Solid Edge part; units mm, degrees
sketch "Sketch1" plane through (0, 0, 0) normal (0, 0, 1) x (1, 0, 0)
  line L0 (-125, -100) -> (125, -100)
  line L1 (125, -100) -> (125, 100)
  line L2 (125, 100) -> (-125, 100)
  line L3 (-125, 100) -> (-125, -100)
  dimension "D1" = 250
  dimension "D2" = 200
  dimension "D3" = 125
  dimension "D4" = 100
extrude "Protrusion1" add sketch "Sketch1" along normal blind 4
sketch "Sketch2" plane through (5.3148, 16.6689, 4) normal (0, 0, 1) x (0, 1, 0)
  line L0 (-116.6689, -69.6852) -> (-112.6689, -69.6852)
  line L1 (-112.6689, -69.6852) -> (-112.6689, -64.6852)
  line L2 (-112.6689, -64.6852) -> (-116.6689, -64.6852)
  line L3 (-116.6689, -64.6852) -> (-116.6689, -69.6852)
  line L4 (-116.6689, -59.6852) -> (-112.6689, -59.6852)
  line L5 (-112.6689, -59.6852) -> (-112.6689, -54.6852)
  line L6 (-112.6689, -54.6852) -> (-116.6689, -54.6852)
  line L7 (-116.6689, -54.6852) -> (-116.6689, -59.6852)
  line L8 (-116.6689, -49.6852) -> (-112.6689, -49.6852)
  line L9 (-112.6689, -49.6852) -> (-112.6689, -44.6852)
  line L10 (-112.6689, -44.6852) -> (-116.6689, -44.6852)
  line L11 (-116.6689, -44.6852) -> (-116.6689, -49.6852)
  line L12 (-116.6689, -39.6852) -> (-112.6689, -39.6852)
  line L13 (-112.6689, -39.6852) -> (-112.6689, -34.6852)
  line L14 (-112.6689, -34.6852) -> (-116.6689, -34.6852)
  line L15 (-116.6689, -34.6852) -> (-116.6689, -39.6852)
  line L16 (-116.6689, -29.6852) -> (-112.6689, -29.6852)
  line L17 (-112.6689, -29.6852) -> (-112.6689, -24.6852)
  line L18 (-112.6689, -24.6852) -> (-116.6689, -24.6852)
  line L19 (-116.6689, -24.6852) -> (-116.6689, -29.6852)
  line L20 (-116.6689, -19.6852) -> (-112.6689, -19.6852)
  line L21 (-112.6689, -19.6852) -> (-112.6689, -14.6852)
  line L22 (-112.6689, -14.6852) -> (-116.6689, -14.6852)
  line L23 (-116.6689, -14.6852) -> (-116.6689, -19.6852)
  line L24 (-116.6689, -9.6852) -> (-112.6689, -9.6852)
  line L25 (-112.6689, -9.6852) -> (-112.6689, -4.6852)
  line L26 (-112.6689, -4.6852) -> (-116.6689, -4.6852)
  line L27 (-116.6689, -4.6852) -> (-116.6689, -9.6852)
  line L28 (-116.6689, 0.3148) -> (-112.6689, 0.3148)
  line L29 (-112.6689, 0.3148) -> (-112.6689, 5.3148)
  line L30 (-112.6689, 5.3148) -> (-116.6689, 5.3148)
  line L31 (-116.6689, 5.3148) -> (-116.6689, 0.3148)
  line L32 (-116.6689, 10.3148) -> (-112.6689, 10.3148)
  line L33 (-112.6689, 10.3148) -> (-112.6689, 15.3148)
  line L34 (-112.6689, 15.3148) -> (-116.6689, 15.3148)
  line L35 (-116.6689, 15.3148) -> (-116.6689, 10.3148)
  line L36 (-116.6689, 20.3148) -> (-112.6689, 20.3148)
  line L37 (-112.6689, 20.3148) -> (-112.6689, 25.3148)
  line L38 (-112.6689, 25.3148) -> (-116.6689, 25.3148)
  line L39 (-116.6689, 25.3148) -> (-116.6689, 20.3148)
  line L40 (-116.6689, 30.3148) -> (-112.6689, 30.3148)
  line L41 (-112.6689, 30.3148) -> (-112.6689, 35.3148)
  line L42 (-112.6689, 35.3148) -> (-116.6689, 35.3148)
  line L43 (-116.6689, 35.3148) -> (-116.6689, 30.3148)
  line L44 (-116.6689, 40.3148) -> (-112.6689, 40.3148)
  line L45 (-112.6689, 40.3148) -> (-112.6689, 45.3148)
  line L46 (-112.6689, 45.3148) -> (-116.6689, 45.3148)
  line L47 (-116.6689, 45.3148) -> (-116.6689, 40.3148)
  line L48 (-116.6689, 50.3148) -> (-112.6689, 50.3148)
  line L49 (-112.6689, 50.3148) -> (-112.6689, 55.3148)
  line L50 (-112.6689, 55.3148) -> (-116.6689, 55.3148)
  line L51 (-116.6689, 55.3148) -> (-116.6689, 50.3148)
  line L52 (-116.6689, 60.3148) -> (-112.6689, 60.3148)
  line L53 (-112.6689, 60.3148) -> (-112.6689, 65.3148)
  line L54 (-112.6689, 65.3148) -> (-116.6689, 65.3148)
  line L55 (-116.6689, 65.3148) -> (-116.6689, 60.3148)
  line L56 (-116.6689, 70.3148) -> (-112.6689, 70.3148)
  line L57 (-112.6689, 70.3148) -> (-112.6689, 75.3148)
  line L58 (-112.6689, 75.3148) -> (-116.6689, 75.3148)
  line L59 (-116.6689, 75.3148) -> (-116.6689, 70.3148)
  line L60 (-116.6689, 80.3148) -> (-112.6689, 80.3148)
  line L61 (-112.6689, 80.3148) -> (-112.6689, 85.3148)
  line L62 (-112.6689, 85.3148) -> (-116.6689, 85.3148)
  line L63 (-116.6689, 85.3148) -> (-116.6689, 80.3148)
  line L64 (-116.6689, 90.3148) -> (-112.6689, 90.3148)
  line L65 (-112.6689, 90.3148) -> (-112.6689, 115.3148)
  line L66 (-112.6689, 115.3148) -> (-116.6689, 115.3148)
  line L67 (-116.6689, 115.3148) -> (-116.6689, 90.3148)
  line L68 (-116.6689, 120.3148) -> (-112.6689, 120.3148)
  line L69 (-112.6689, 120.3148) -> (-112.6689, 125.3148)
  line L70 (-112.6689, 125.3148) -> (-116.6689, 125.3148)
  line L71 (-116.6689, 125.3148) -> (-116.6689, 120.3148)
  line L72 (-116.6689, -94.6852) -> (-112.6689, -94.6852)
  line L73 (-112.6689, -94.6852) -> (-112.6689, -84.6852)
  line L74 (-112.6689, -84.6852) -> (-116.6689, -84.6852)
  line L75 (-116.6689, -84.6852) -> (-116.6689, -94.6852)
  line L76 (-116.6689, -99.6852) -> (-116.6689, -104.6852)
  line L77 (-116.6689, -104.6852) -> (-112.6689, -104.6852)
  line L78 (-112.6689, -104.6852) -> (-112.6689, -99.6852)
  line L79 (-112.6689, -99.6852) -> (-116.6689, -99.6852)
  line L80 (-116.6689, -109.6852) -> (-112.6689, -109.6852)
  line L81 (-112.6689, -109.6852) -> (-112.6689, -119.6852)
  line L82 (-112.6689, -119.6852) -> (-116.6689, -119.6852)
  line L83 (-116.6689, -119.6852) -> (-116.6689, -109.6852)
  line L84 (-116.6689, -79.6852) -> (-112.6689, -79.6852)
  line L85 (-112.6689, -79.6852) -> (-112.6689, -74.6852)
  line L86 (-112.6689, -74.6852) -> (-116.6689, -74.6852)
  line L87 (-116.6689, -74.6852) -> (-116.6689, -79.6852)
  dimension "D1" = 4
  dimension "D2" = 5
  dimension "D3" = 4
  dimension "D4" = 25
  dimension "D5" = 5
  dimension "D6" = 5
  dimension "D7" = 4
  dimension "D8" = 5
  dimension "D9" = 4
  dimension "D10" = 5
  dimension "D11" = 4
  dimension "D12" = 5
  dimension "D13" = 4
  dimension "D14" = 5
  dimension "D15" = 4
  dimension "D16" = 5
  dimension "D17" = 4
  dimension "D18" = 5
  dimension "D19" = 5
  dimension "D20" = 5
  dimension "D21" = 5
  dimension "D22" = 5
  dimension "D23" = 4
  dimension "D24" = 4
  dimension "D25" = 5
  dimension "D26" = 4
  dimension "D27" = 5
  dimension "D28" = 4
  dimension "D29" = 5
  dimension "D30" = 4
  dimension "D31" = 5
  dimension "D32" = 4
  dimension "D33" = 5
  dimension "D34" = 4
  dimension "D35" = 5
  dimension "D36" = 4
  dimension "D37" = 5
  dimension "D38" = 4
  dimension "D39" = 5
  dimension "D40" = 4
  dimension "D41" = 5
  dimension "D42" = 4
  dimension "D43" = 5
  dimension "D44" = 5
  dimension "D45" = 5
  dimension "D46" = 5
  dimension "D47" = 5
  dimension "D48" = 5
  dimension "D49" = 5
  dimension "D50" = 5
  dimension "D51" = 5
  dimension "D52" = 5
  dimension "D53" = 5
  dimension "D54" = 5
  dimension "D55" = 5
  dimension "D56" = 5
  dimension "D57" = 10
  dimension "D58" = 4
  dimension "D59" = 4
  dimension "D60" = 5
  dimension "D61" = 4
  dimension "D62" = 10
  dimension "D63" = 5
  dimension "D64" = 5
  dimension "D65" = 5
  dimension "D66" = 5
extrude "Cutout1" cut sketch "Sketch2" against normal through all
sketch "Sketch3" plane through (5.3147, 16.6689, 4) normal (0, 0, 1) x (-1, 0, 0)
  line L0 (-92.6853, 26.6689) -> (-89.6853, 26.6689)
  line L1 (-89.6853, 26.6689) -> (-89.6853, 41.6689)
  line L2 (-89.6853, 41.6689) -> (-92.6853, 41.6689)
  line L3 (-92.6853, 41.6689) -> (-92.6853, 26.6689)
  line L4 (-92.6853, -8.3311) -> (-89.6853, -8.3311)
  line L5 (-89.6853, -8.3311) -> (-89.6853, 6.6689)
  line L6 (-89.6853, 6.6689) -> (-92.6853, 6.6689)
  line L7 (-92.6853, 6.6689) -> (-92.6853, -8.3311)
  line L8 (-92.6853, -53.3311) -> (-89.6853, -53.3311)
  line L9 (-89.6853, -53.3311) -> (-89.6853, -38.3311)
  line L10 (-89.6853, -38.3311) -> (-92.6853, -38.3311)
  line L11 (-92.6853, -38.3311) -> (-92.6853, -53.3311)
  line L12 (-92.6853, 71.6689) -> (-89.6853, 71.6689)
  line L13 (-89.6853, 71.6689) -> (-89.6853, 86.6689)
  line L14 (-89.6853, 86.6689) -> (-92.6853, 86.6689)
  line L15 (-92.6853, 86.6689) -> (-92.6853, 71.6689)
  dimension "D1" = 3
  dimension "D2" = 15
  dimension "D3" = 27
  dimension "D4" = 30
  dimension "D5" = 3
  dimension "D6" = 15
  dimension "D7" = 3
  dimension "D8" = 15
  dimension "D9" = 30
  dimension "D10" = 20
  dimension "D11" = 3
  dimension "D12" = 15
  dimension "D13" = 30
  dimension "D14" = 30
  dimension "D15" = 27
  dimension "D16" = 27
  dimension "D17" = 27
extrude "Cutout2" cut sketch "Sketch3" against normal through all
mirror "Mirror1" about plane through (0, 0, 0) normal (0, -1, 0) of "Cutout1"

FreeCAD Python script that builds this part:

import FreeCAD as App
import Part
import Sketcher

V = App.Vector
Q = App.Units.Quantity

doc = App.newDocument("Part")
params = doc.addObject("Spreadsheet::Sheet", "Params")
for row, (alias, value) in enumerate([
    ("sketch1_height", "200 mm"),
    ("pad1_length", "4 mm"),
    ("sketch2_width", "5 mm"),
    ("sketch2_width2", "25 mm"),
    ("sketch2_width3", "10 mm"),
    ("sketch2_height", "4 mm"),
    ("sketch3_width", "3 mm"),
    ("sketch3_height", "15 mm"),
], start=1):
    params.set(f"A{row}", alias)
    params.set(f"B{row}", "=" + value)
    params.setAlias(f"B{row}", alias)

body = doc.addObject("PartDesign::Body", "Body")

sketch1 = body.newObject("Sketcher::SketchObject", "Sketch")
sketch1.AttachmentSupport = (doc.getObject("XY_Plane"), [""])
sketch1.MapMode = "FlatFace"
sketch1.addGeometry(Part.LineSegment(V(-125, 100, 0), V(-125, -100, 0)), False)
sketch1.addGeometry(Part.LineSegment(V(-125, -100, 0), V(125, -100, 0)), False)
sketch1.addGeometry(Part.LineSegment(V(125, -100, 0), V(125, 100, 0)), False)
sketch1.addGeometry(Part.LineSegment(V(125, 100, 0), V(-125, 100, 0)), False)
sketch1.addConstraint(Sketcher.Constraint("Coincident", 0, 2, 1, 1))
sketch1.addConstraint(Sketcher.Constraint("Coincident", 1, 2, 2, 1))
sketch1.addConstraint(Sketcher.Constraint("Coincident", 2, 2, 3, 1))
sketch1.addConstraint(Sketcher.Constraint("Coincident", 3, 2, 0, 1))
sketch1.addConstraint(Sketcher.Constraint("Vertical", 0))
sketch1.addConstraint(Sketcher.Constraint("Horizontal", 1))
sketch1.addConstraint(Sketcher.Constraint("Vertical", 2))
sketch1.addConstraint(Sketcher.Constraint("Horizontal", 3))
sketch1.addConstraint(Sketcher.Constraint("Symmetric", 0, 2, 2, 2, -1, 1))
sketch1.addConstraint(Sketcher.Constraint("DistanceX", 0, 2, -1, 1, Q("125 mm")))
sketch1.addConstraint(Sketcher.Constraint("DistanceY", 0, 2, 0, 1, Q("200 mm")))
sketch1.setExpression("Constraints[10]", "Params.sketch1_height")
pad1 = body.newObject("PartDesign::Pad", "Pad")
pad1.Profile = sketch1
pad1.setExpression("Length", "Params.pad1_length")

sketch2 = body.newObject("Sketcher::SketchObject", "Sketch001")
sketch2.AttachmentSupport = (doc.getObject("XY_Plane"), [""])
sketch2.MapMode = "FlatFace"
sketch2.AttachmentOffset = App.Placement(V(0, 0, 4), App.Rotation())
sketch2.addGeometry(Part.LineSegment(V(70, -100, 0), V(75, -100, 0)), False)
sketch2.addGeometry(Part.LineSegment(V(75, -100, 0), V(75, -96, 0)), False)
sketch2.addGeometry(Part.LineSegment(V(75, -96, 0), V(70, -96, 0)), False)
sketch2.addGeometry(Part.LineSegment(V(70, -96, 0), V(70, -100, 0)), False)
sketch2.addGeometry(Part.LineSegment(V(60, -100, 0), V(65, -100, 0)), False)
sketch2.addGeometry(Part.LineSegment(V(65, -100, 0), V(65, -96, 0)), False)
sketch2.addGeometry(Part.LineSegment(V(65, -96, 0), V(60, -96, 0)), False)
sketch2.addGeometry(Part.LineSegment(V(60, -96, 0), V(60, -100, 0)), False)
sketch2.addGeometry(Part.LineSegment(V(50, -100, 0), V(55, -100, 0)), False)
sketch2.addGeometry(Part.LineSegment(V(55, -100, 0), V(55, -96, 0)), False)
sketch2.addGeometry(Part.LineSegment(V(55, -96, 0), V(50, -96, 0)), False)
sketch2.addGeometry(Part.LineSegment(V(50, -96, 0), V(50, -100, 0)), False)
sketch2.addGeometry(Part.LineSegment(V(40, -100, 0), V(45, -100, 0)), False)
sketch2.addGeometry(Part.LineSegment(V(45, -100, 0), V(45, -96, 0)), False)
sketch2.addGeometry(Part.LineSegment(V(45, -96, 0), V(40, -96, 0)), False)
sketch2.addGeometry(Part.LineSegment(V(40, -96, 0), V(40, -100, 0)), False)
sketch2.addGeometry(Part.LineSegment(V(30, -100, 0), V(35, -100, 0)), False)
sketch2.addGeometry(Part.LineSegment(V(35, -100, 0), V(35, -96, 0)), False)
sketch2.addGeometry(Part.LineSegment(V(35, -96, 0), V(30, -96, 0)), False)
sketch2.addGeometry(Part.LineSegment(V(30, -96, 0), V(30, -100, 0)), False)
sketch2.addGeometry(Part.LineSegment(V(20, -100, 0), V(25, -100, 0)), False)
sketch2.addGeometry(Part.LineSegment(V(25, -100, 0), V(25, -96, 0)), False)
sketch2.addGeometry(Part.LineSegment(V(25, -96, 0), V(20, -96, 0)), False)
sketch2.addGeometry(Part.LineSegment(V(20, -96, 0), V(20, -100, 0)), False)
sketch2.addGeometry(Part.LineSegment(V(10, -100, 0), V(15, -100, 0)), False)
sketch2.addGeometry(Part.LineSegment(V(15, -100, 0), V(15, -96, 0)), False)
sketch2.addGeometry(Part.LineSegment(V(15, -96, 0), V(10, -96, 0)), False)
sketch2.addGeometry(Part.LineSegment(V(10, -96, 0), V(10, -100, 0)), False)
sketch2.addGeometry(Part.LineSegment(V(0, -100, 0), V(5, -100, 0)), False)
sketch2.addGeometry(Part.LineSegment(V(5, -100, 0), V(5, -96, 0)), False)
sketch2.addGeometry(Part.LineSegment(V(5, -96, 0), V(0, -96, 0)), False)
sketch2.addGeometry(Part.LineSegment(V(0, -96, 0), V(0, -100, 0)), False)
sketch2.addGeometry(Part.LineSegment(V(-10, -100, 0), V(-5, -100, 0)), False)
sketch2.addGeometry(Part.LineSegment(V(-5, -100, 0), V(-5, -96, 0)), False)
sketch2.addGeometry(Part.LineSegment(V(-5, -96, 0), V(-10, -96, 0)), False)
sketch2.addGeometry(Part.LineSegment(V(-10, -96, 0), V(-10, -100, 0)), False)
sketch2.addGeometry(Part.LineSegment(V(-20, -100, 0), V(-15, -100, 0)), False)
sketch2.addGeometry(Part.LineSegment(V(-15, -100, 0), V(-15, -96, 0)), False)
sketch2.addGeometry(Part.LineSegment(V(-15, -96, 0), V(-20, -96, 0)), False)
sketch2.addGeometry(Part.LineSegment(V(-20, -96, 0), V(-20, -100, 0)), False)
sketch2.addGeometry(Part.LineSegment(V(-30, -100, 0), V(-25, -100, 0)), False)
sketch2.addGeometry(Part.LineSegment(V(-25, -100, 0), V(-25, -96, 0)), False)
sketch2.addGeometry(Part.LineSegment(V(-25, -96, 0), V(-30, -96, 0)), False)
sketch2.addGeometry(Part.LineSegment(V(-30, -96, 0), V(-30, -100, 0)), False)
sketch2.addGeometry(Part.LineSegment(V(-40, -100, 0), V(-35, -100, 0)), False)
sketch2.addGeometry(Part.LineSegment(V(-35, -100, 0), V(-35, -96, 0)), False)
sketch2.addGeometry(Part.LineSegment(V(-35, -96, 0), V(-40, -96, 0)), False)
sketch2.addGeometry(Part.LineSegment(V(-40, -96, 0), V(-40, -100, 0)), False)
sketch2.addGeometry(Part.LineSegment(V(-50, -100, 0), V(-45, -100, 0)), False)
sketch2.addGeometry(Part.LineSegment(V(-45, -100, 0), V(-45, -96, 0)), False)
sketch2.addGeometry(Part.LineSegment(V(-45, -96, 0), V(-50, -96, 0)), False)
sketch2.addGeometry(Part.LineSegment(V(-50, -96, 0), V(-50, -100, 0)), False)
sketch2.addGeometry(Part.LineSegment(V(-60, -100, 0), V(-55, -100, 0)), False)
sketch2.addGeometry(Part.LineSegment(V(-55, -100, 0), V(-55, -96, 0)), False)
sketch2.addGeometry(Part.LineSegment(V(-55, -96, 0), V(-60, -96, 0)), False)
sketch2.addGeometry(Part.LineSegment(V(-60, -96, 0), V(-60, -100, 0)), False)
sketch2.addGeometry(Part.LineSegment(V(-70, -100, 0), V(-65, -100, 0)), False)
sketch2.addGeometry(Part.LineSegment(V(-65, -100, 0), V(-65, -96, 0)), False)
sketch2.addGeometry(Part.LineSegment(V(-65, -96, 0), V(-70, -96, 0)), False)
sketch2.addGeometry(Part.LineSegment(V(-70, -96, 0), V(-70, -100, 0)), False)
sketch2.addGeometry(Part.LineSegment(V(-80, -100, 0), V(-75, -100, 0)), False)
sketch2.addGeometry(Part.LineSegment(V(-75, -100, 0), V(-75, -96, 0)), False)
sketch2.addGeometry(Part.LineSegment(V(-75, -96, 0), V(-80, -96, 0)), False)
sketch2.addGeometry(Part.LineSegment(V(-80, -96, 0), V(-80, -100, 0)), False)
sketch2.addGeometry(Part.LineSegment(V(-110, -100, 0), V(-85, -100, 0)), False)
sketch2.addGeometry(Part.LineSegment(V(-85, -100, 0), V(-85, -96, 0)), False)
sketch2.addGeometry(Part.LineSegment(V(-85, -96, 0), V(-110, -96, 0)), False)
sketch2.addGeometry(Part.LineSegment(V(-110, -96, 0), V(-110, -100, 0)), False)
sketch2.addGeometry(Part.LineSegment(V(-120, -100, 0), V(-115, -100, 0)), False)
sketch2.addGeometry(Part.LineSegment(V(-115, -100, 0), V(-115, -96, 0)), False)
sketch2.addGeometry(Part.LineSegment(V(-115, -96, 0), V(-120, -96, 0)), False)
sketch2.addGeometry(Part.LineSegment(V(-120, -96, 0), V(-120, -100, 0)), False)
sketch2.addGeometry(Part.LineSegment(V(90, -100, 0), V(100, -100, 0)), False)
sketch2.addGeometry(Part.LineSegment(V(100, -100, 0), V(100, -96, 0)), False)
sketch2.addGeometry(Part.LineSegment(V(100, -96, 0), V(90, -96, 0)), False)
sketch2.addGeometry(Part.LineSegment(V(90, -96, 0), V(90, -100, 0)), False)
sketch2.addGeometry(Part.LineSegment(V(105, -96, 0), V(105, -100, 0)), False)
sketch2.addGeometry(Part.LineSegment(V(105, -100, 0), V(110, -100, 0)), False)
sketch2.addGeometry(Part.LineSegment(V(110, -100, 0), V(110, -96, 0)), False)
sketch2.addGeometry(Part.LineSegment(V(110, -96, 0), V(105, -96, 0)), False)
sketch2.addGeometry(Part.LineSegment(V(115, -96, 0), V(115, -100, 0)), False)
sketch2.addGeometry(Part.LineSegment(V(115, -100, 0), V(125, -100, 0)), False)
sketch2.addGeometry(Part.LineSegment(V(125, -100, 0), V(125, -96, 0)), False)
sketch2.addGeometry(Part.LineSegment(V(125, -96, 0), V(115, -96, 0)), False)
sketch2.addGeometry(Part.LineSegment(V(80, -100, 0), V(85, -100, 0)), False)
sketch2.addGeometry(Part.LineSegment(V(85, -100, 0), V(85, -96, 0)), False)
sketch2.addGeometry(Part.LineSegment(V(85, -96, 0), V(80, -96, 0)), False)
sketch2.addGeometry(Part.LineSegment(V(80, -96, 0), V(80, -100, 0)), False)
sketch2.addConstraint(Sketcher.Constraint("Coincident", 0, 2, 1, 1))
sketch2.addConstraint(Sketcher.Constraint("Coincident", 1, 2, 2, 1))
sketch2.addConstraint(Sketcher.Constraint("Coincident", 2, 2, 3, 1))
sketch2.addConstraint(Sketcher.Constraint("Coincident", 3, 2, 0, 1))
sketch2.addConstraint(Sketcher.Constraint("Coincident", 4, 2, 5, 1))
sketch2.addConstraint(Sketcher.Constraint("Coincident", 5, 2, 6, 1))
sketch2.addConstraint(Sketcher.Constraint("Coincident", 6, 2, 7, 1))
sketch2.addConstraint(Sketcher.Constraint("Coincident", 7, 2, 4, 1))
sketch2.addConstraint(Sketcher.Constraint("Coincident", 8, 2, 9, 1))
sketch2.addConstraint(Sketcher.Constraint("Coincident", 9, 2, 10, 1))
sketch2.addConstraint(Sketcher.Constraint("Coincident", 10, 2, 11, 1))
sketch2.addConstraint(Sketcher.Constraint("Coincident", 11, 2, 8, 1))
sketch2.addConstraint(Sketcher.Constraint("Coincident", 12, 2, 13, 1))
sketch2.addConstraint(Sketcher.Constraint("Coincident", 13, 2, 14, 1))
sketch2.addConstraint(Sketcher.Constraint("Coincident", 14, 2, 15, 1))
sketch2.addConstraint(Sketcher.Constraint("Coincident", 15, 2, 12, 1))
sketch2.addConstraint(Sketcher.Constraint("Coincident", 16, 2, 17, 1))
sketch2.addConstraint(Sketcher.Constraint("Coincident", 17, 2, 18, 1))
sketch2.addConstraint(Sketcher.Constraint("Coincident", 18, 2, 19, 1))
sketch2.addConstraint(Sketcher.Constraint("Coincident", 19, 2, 16, 1))
sketch2.addConstraint(Sketcher.Constraint("Coincident", 20, 2, 21, 1))
sketch2.addConstraint(Sketcher.Constraint("Coincident", 21, 2, 22, 1))
sketch2.addConstraint(Sketcher.Constraint("Coincident", 22, 2, 23, 1))
sketch2.addConstraint(Sketcher.Constraint("Coincident", 23, 2, 20, 1))
sketch2.addConstraint(Sketcher.Constraint("Coincident", 24, 2, 25, 1))
sketch2.addConstraint(Sketcher.Constraint("Coincident", 25, 2, 26, 1))
sketch2.addConstraint(Sketcher.Constraint("Coincident", 26, 2, 27, 1))
sketch2.addConstraint(Sketcher.Constraint("Coincident", 27, 2, 24, 1))
sketch2.addConstraint(Sketcher.Constraint("Coincident", 28, 2, 29, 1))
sketch2.addConstraint(Sketcher.Constraint("Coincident", 29, 2, 30, 1))
sketch2.addConstraint(Sketcher.Constraint("Coincident", 30, 2, 31, 1))
sketch2.addConstraint(Sketcher.Constraint("Coincident", 31, 2, 28, 1))
sketch2.addConstraint(Sketcher.Constraint("Coincident", 32, 2, 33, 1))
sketch2.addConstraint(Sketcher.Constraint("Coincident", 33, 2, 34, 1))
sketch2.addConstraint(Sketcher.Constraint("Coincident", 34, 2, 35, 1))
sketch2.addConstraint(Sketcher.Constraint("Coincident", 35, 2, 32, 1))
sketch2.addConstraint(Sketcher.Constraint("Coincident", 36, 2, 37, 1))
sketch2.addConstraint(Sketcher.Constraint("Coincident", 37, 2, 38, 1))
sketch2.addConstraint(Sketcher.Constraint("Coincident", 38, 2, 39, 1))
sketch2.addConstraint(Sketcher.Constraint("Coincident", 39, 2, 36, 1))
sketch2.addConstraint(Sketcher.Constraint("Coincident", 40, 2, 41, 1))
sketch2.addConstraint(Sketcher.Constraint("Coincident", 41, 2, 42, 1))
sketch2.addConstraint(Sketcher.Constraint("Coincident", 42, 2, 43, 1))
sketch2.addConstraint(Sketcher.Constraint("Coincident", 43, 2, 40, 1))
sketch2.addConstraint(Sketcher.Constraint("Coincident", 44, 2, 45, 1))
sketch2.addConstraint(Sketcher.Constraint("Coincident", 45, 2, 46, 1))
sketch2.addConstraint(Sketcher.Constraint("Coincident", 46, 2, 47, 1))
sketch2.addConstraint(Sketcher.Constraint("Coincident", 47, 2, 44, 1))
sketch2.addConstraint(Sketcher.Constraint("Coincident", 48, 2, 49, 1))
sketch2.addConstraint(Sketcher.Constraint("Coincident", 49, 2, 50, 1))
sketch2.addConstraint(Sketcher.Constraint("Coincident", 50, 2, 51, 1))
sketch2.addConstraint(Sketcher.Constraint("Coincident", 51, 2, 48, 1))
sketch2.addConstraint(Sketcher.Constraint("Coincident", 52, 2, 53, 1))
sketch2.addConstraint(Sketcher.Constraint("Coincident", 53, 2, 54, 1))
sketch2.addConstraint(Sketcher.Constraint("Coincident", 54, 2, 55, 1))
sketch2.addConstraint(Sketcher.Constraint("Coincident", 55, 2, 52, 1))
sketch2.addConstraint(Sketcher.Constraint("Coincident", 56, 2, 57, 1))
sketch2.addConstraint(Sketcher.Constraint("Coincident", 57, 2, 58, 1))
sketch2.addConstraint(Sketcher.Constraint("Coincident", 58, 2, 59, 1))
sketch2.addConstraint(Sketcher.Constraint("Coincident", 59, 2, 56, 1))
sketch2.addConstraint(Sketcher.Constraint("Coincident", 60, 2, 61, 1))
sketch2.addConstraint(Sketcher.Constraint("Coincident", 61, 2, 62, 1))
sketch2.addConstraint(Sketcher.Constraint("Coincident", 62, 2, 63, 1))
sketch2.addConstraint(Sketcher.Constraint("Coincident", 63, 2, 60, 1))
sketch2.addConstraint(Sketcher.Constraint("Coincident", 64, 2, 65, 1))
sketch2.addConstraint(Sketcher.Constraint("Coincident", 65, 2, 66, 1))
sketch2.addConstraint(Sketcher.Constraint("Coincident", 66, 2, 67, 1))
sketch2.addConstraint(Sketcher.Constraint("Coincident", 67, 2, 64, 1))
sketch2.addConstraint(Sketcher.Constraint("Coincident", 68, 2, 69, 1))
sketch2.addConstraint(Sketcher.Constraint("Coincident", 69, 2, 70, 1))
sketch2.addConstraint(Sketcher.Constraint("Coincident", 70, 2, 71, 1))
sketch2.addConstraint(Sketcher.Constraint("Coincident", 71, 2, 68, 1))
sketch2.addConstraint(Sketcher.Constraint("Coincident", 72, 2, 73, 1))
sketch2.addConstraint(Sketcher.Constraint("Coincident", 73, 2, 74, 1))
sketch2.addConstraint(Sketcher.Constraint("Coincident", 74, 2, 75, 1))
sketch2.addConstraint(Sketcher.Constraint("Coincident", 75, 2, 72, 1))
sketch2.addConstraint(Sketcher.Constraint("Coincident", 76, 2, 77, 1))
sketch2.addConstraint(Sketcher.Constraint("Coincident", 77, 2, 78, 1))
sketch2.addConstraint(Sketcher.Constraint("Coincident", 78, 2, 79, 1))
sketch2.addConstraint(Sketcher.Constraint("Coincident", 79, 2, 76, 1))
sketch2.addConstraint(Sketcher.Constraint("Coincident", 80, 2, 81, 1))
sketch2.addConstraint(Sketcher.Constraint("Coincident", 81, 2, 82, 1))
sketch2.addConstraint(Sketcher.Constraint("Coincident", 82, 2, 83, 1))
sketch2.addConstraint(Sketcher.Constraint("Coincident", 83, 2, 80, 1))
sketch2.addConstraint(Sketcher.Constraint("Coincident", 84, 2, 85, 1))
sketch2.addConstraint(Sketcher.Constraint("Coincident", 85, 2, 86, 1))
sketch2.addConstraint(Sketcher.Constraint("Coincident", 86, 2, 87, 1))
sketch2.addConstraint(Sketcher.Constraint("Coincident", 87, 2, 84, 1))
sketch2.addConstraint(Sketcher.Constraint("Horizontal", 0))
sketch2.addConstraint(Sketcher.Constraint("Vertical", 1))
sketch2.addConstraint(Sketcher.Constraint("Horizontal", 2))
sketch2.addConstraint(Sketcher.Constraint("Vertical", 3))
sketch2.addConstraint(Sketcher.Constraint("Horizontal", 4))
sketch2.addConstraint(Sketcher.Constraint("Vertical", 5))
sketch2.addConstraint(Sketcher.Constraint("Horizontal", 6))
sketch2.addConstraint(Sketcher.Constraint("Vertical", 7))
sketch2.addConstraint(Sketcher.Constraint("Horizontal", 8))
sketch2.addConstraint(Sketcher.Constraint("Vertical", 9))
sketch2.addConstraint(Sketcher.Constraint("Horizontal", 10))
sketch2.addConstraint(Sketcher.Constraint("Vertical", 11))
sketch2.addConstraint(Sketcher.Constraint("Horizontal", 12))
sketch2.addConstraint(Sketcher.Constraint("Vertical", 13))
sketch2.addConstraint(Sketcher.Constraint("Horizontal", 14))
sketch2.addConstraint(Sketcher.Constraint("Vertical", 15))
sketch2.addConstraint(Sketcher.Constraint("Horizontal", 16))
sketch2.addConstraint(Sketcher.Constraint("Vertical", 17))
sketch2.addConstraint(Sketcher.Constraint("Horizontal", 18))
sketch2.addConstraint(Sketcher.Constraint("Vertical", 19))
sketch2.addConstraint(Sketcher.Constraint("Horizontal", 20))
sketch2.addConstraint(Sketcher.Constraint("Vertical", 21))
sketch2.addConstraint(Sketcher.Constraint("Horizontal", 22))
sketch2.addConstraint(Sketcher.Constraint("Vertical", 23))
sketch2.addConstraint(Sketcher.Constraint("Horizontal", 24))
sketch2.addConstraint(Sketcher.Constraint("Vertical", 25))
sketch2.addConstraint(Sketcher.Constraint("Horizontal", 26))
sketch2.addConstraint(Sketcher.Constraint("Vertical", 27))
sketch2.addConstraint(Sketcher.Constraint("Horizontal", 28))
sketch2.addConstraint(Sketcher.Constraint("Vertical", 29))
sketch2.addConstraint(Sketcher.Constraint("Horizontal", 30))
sketch2.addConstraint(Sketcher.Constraint("Vertical", 31))
sketch2.addConstraint(Sketcher.Constraint("Horizontal", 32))
sketch2.addConstraint(Sketcher.Constraint("Vertical", 33))
sketch2.addConstraint(Sketcher.Constraint("Horizontal", 34))
sketch2.addConstraint(Sketcher.Constraint("Vertical", 35))
sketch2.addConstraint(Sketcher.Constraint("Horizontal", 36))
sketch2.addConstraint(Sketcher.Constraint("Vertical", 37))
sketch2.addConstraint(Sketcher.Constraint("Horizontal", 38))
sketch2.addConstraint(Sketcher.Constraint("Vertical", 39))
sketch2.addConstraint(Sketcher.Constraint("Horizontal", 40))
sketch2.addConstraint(Sketcher.Constraint("Vertical", 41))
sketch2.addConstraint(Sketcher.Constraint("Horizontal", 42))
sketch2.addConstraint(Sketcher.Constraint("Vertical", 43))
sketch2.addConstraint(Sketcher.Constraint("Horizontal", 44))
sketch2.addConstraint(Sketcher.Constraint("Vertical", 45))
sketch2.addConstraint(Sketcher.Constraint("Horizontal", 46))
sketch2.addConstraint(Sketcher.Constraint("Vertical", 47))
sketch2.addConstraint(Sketcher.Constraint("Horizontal", 48))
sketch2.addConstraint(Sketcher.Constraint("Vertical", 49))
sketch2.addConstraint(Sketcher.Constraint("Horizontal", 50))
sketch2.addConstraint(Sketcher.Constraint("Vertical", 51))
sketch2.addConstraint(Sketcher.Constraint("Horizontal", 52))
sketch2.addConstraint(Sketcher.Constraint("Vertical", 53))
sketch2.addConstraint(Sketcher.Constraint("Horizontal", 54))
sketch2.addConstraint(Sketcher.Constraint("Vertical", 55))
sketch2.addConstraint(Sketcher.Constraint("Horizontal", 56))
sketch2.addConstraint(Sketcher.Constraint("Vertical", 57))
sketch2.addConstraint(Sketcher.Constraint("Horizontal", 58))
sketch2.addConstraint(Sketcher.Constraint("Vertical", 59))
sketch2.addConstraint(Sketcher.Constraint("Horizontal", 60))
sketch2.addConstraint(Sketcher.Constraint("Vertical", 61))
sketch2.addConstraint(Sketcher.Constraint("Horizontal", 62))
sketch2.addConstraint(Sketcher.Constraint("Vertical", 63))
sketch2.addConstraint(Sketcher.Constraint("Horizontal", 64))
sketch2.addConstraint(Sketcher.Constraint("Vertical", 65))
sketch2.addConstraint(Sketcher.Constraint("Horizontal", 66))
sketch2.addConstraint(Sketcher.Constraint("Vertical", 67))
sketch2.addConstraint(Sketcher.Constraint("Horizontal", 68))
sketch2.addConstraint(Sketcher.Constraint("Vertical", 69))
sketch2.addConstraint(Sketcher.Constraint("Horizontal", 70))
sketch2.addConstraint(Sketcher.Constraint("Vertical", 71))
sketch2.addConstraint(Sketcher.Constraint("Horizontal", 72))
sketch2.addConstraint(Sketcher.Constraint("Vertical", 73))
sketch2.addConstraint(Sketcher.Constraint("Horizontal", 74))
sketch2.addConstraint(Sketcher.Constraint("Vertical", 75))
sketch2.addConstraint(Sketcher.Constraint("Vertical", 76))
sketch2.addConstraint(Sketcher.Constraint("Horizontal", 77))
sketch2.addConstraint(Sketcher.Constraint("Vertical", 78))
sketch2.addConstraint(Sketcher.Constraint("Horizontal", 79))
sketch2.addConstraint(Sketcher.Constraint("Vertical", 80))
sketch2.addConstraint(Sketcher.Constraint("Horizontal", 81))
sketch2.addConstraint(Sketcher.Constraint("Vertical", 82))
sketch2.addConstraint(Sketcher.Constraint("Horizontal", 83))
sketch2.addConstraint(Sketcher.Constraint("Horizontal", 84))
sketch2.addConstraint(Sketcher.Constraint("Vertical", 85))
sketch2.addConstraint(Sketcher.Constraint("Horizontal", 86))
sketch2.addConstraint(Sketcher.Constraint("Vertical", 87))
sketch2.addConstraint(Sketcher.Constraint("Symmetric", 28, 2, 32, 2, -2))
sketch2.addConstraint(Sketcher.Constraint("Symmetric", 26, 2, 34, 2, -2))
sketch2.addConstraint(Sketcher.Constraint("Symmetric", 24, 2, 36, 2, -2))
sketch2.addConstraint(Sketcher.Constraint("Symmetric", 22, 2, 38, 2, -2))
sketch2.addConstraint(Sketcher.Constraint("Symmetric", 20, 2, 40, 2, -2))
sketch2.addConstraint(Sketcher.Constraint("Symmetric", 18, 2, 42, 2, -2))
sketch2.addConstraint(Sketcher.Constraint("Symmetric", 16, 2, 44, 2, -2))
sketch2.addConstraint(Sketcher.Constraint("Symmetric", 14, 2, 46, 2, -2))
sketch2.addConstraint(Sketcher.Constraint("Symmetric", 12, 2, 48, 2, -2))
sketch2.addConstraint(Sketcher.Constraint("Symmetric", 10, 2, 50, 2, -2))
sketch2.addConstraint(Sketcher.Constraint("Symmetric", 8, 2, 52, 2, -2))
sketch2.addConstraint(Sketcher.Constraint("Symmetric", 6, 2, 54, 2, -2))
sketch2.addConstraint(Sketcher.Constraint("Symmetric", 4, 2, 56, 2, -2))
sketch2.addConstraint(Sketcher.Constraint("Symmetric", 2, 2, 58, 2, -2))
sketch2.addConstraint(Sketcher.Constraint("Symmetric", 0, 2, 60, 2, -2))
sketch2.addConstraint(Sketcher.Constraint("Symmetric", 67, 2, 77, 2, -2))
sketch2.addConstraint(Sketcher.Constraint("Symmetric", 68, 2, 80, 2, -2))
sketch2.addConstraint(Sketcher.Constraint("Symmetric", 64, 2, 84, 2, -2))
sketch2.addConstraint(Sketcher.Constraint("Symmetric", 62, 2, 86, 2, -2))
sketch2.addConstraint(Sketcher.Constraint("PointOnObject", 30, 2, -2))
sketch2.addConstraint(Sketcher.Constraint("Horizontal", 3, 2, 4, 2))
sketch2.addConstraint(Sketcher.Constraint("Horizontal", 2, 2, 5, 2))
sketch2.addConstraint(Sketcher.Constraint("Horizontal", 7, 2, 8, 2))
sketch2.addConstraint(Sketcher.Constraint("Horizontal", 6, 2, 9, 2))
sketch2.addConstraint(Sketcher.Constraint("Horizontal", 11, 2, 12, 2))
sketch2.addConstraint(Sketcher.Constraint("Horizontal", 10, 2, 13, 2))
sketch2.addConstraint(Sketcher.Constraint("Horizontal", 15, 2, 16, 2))
sketch2.addConstraint(Sketcher.Constraint("Horizontal", 14, 2, 17, 2))
sketch2.addConstraint(Sketcher.Constraint("Horizontal", 19, 2, 20, 2))
sketch2.addConstraint(Sketcher.Constraint("Horizontal", 18, 2, 21, 2))
sketch2.addConstraint(Sketcher.Constraint("Horizontal", 23, 2, 24, 2))
sketch2.addConstraint(Sketcher.Constraint("Horizontal", 22, 2, 25, 2))
sketch2.addConstraint(Sketcher.Constraint("Horizontal", 27, 2, 28, 2))
sketch2.addConstraint(Sketcher.Constraint("Horizontal", 26, 2, 29, 2))
sketch2.addConstraint(Sketcher.Constraint("Horizontal", 58, 2, 61, 2))
sketch2.addConstraint(Sketcher.Constraint("Horizontal", 63, 2, 64, 2))
sketch2.addConstraint(Sketcher.Constraint("Horizontal", 62, 2, 65, 2))
sketch2.addConstraint(Sketcher.Constraint("Horizontal", 67, 2, 68, 2))
sketch2.addConstraint(Sketcher.Constraint("Horizontal", 66, 2, 69, 2))
sketch2.addConstraint(Sketcher.Constraint("Horizontal", 71, 2, 72, 2))
sketch2.addConstraint(Sketcher.Constraint("Horizontal", 70, 2, 73, 2))
sketch2.addConstraint(Sketcher.Constraint("Horizontal", 74, 2, 78, 2))
sketch2.addConstraint(Sketcher.Constraint("Horizontal", 79, 2, 82, 2))
sketch2.addConstraint(Sketcher.Constraint("Equal", 2, 4))
sketch2.addConstraint(Sketcher.Constraint("Equal", 6, 8))
sketch2.addConstraint(Sketcher.Constraint("Equal", 10, 12))
sketch2.addConstraint(Sketcher.Constraint("Equal", 14, 16))
sketch2.addConstraint(Sketcher.Constraint("Equal", 18, 20))
sketch2.addConstraint(Sketcher.Constraint("Equal", 22, 24))
sketch2.addConstraint(Sketcher.Constraint("Equal", 26, 28))
sketch2.addConstraint(Sketcher.Constraint("Equal", 30, 32))
sketch2.addConstraint(Sketcher.Constraint("Equal", 34, 36))
sketch2.addConstraint(Sketcher.Constraint("Equal", 38, 40))
sketch2.addConstraint(Sketcher.Constraint("Equal", 42, 44))
sketch2.addConstraint(Sketcher.Constraint("Equal", 46, 48))
sketch2.addConstraint(Sketcher.Constraint("Equal", 50, 52))
sketch2.addConstraint(Sketcher.Constraint("Equal", 54, 56))
sketch2.addConstraint(Sketcher.Constraint("Equal", 58, 60))
sketch2.addConstraint(Sketcher.Constraint("Equal", 62, 68))
sketch2.addConstraint(Sketcher.Constraint("Equal", 70, 77))
sketch2.addConstraint(Sketcher.Constraint("Equal", 74, 81))
sketch2.addConstraint(Sketcher.Constraint("Equal", 79, 84))
sketch2.addConstraint(Sketcher.Constraint("DistanceX", 0, 1, 0, 2, Q("5 mm")))
sketch2.addConstraint(Sketcher.Constraint("DistanceX", 64, 1, 64, 2, Q("25 mm")))
sketch2.addConstraint(Sketcher.Constraint("DistanceX", 72, 1, 72, 2, Q("10 mm")))
sketch2.addConstraint(Sketcher.Constraint("DistanceY", 1, 1, 1, 2, Q("4 mm")))
sketch2.addConstraint(Sketcher.Constraint("DistanceY", 0, 2, -1, 1, Q("100 mm")))
sketch2.addConstraint(Sketcher.Constraint("DistanceX", 68, 2, -1, 1, Q("115 mm")))
sketch2.addConstraint(Sketcher.Constraint("DistanceX", -1, 1, 72, 2, Q("100 mm")))
sketch2.setExpression("Constraints[238]", "Params.sketch2_width")
sketch2.setExpression("Constraints[239]", "Params.sketch2_width2")
sketch2.setExpression("Constraints[240]", "Params.sketch2_width3")
sketch2.setExpression("Constraints[241]", "Params.sketch2_height")
pocket1 = body.newObject("PartDesign::Pocket", "Pocket")
pocket1.Profile = sketch2
pocket1.Type = "ThroughAll"

sketch3 = body.newObject("Sketcher::SketchObject", "Sketch002")
sketch3.AttachmentSupport = (doc.getObject("XY_Plane"), [""])
sketch3.MapMode = "FlatFace"
sketch3.AttachmentOffset = App.Placement(V(0, 0, 4), App.Rotation())
sketch3.addGeometry(Part.LineSegment(V(98, -25, 0), V(98, -10, 0)), False)
sketch3.addGeometry(Part.LineSegment(V(98, -10, 0), V(95, -10, 0)), False)
sketch3.addGeometry(Part.LineSegment(V(95, -10, 0), V(95, -25, 0)), False)
sketch3.addGeometry(Part.LineSegment(V(95, -25, 0), V(98, -25, 0)), False)
sketch3.addGeometry(Part.LineSegment(V(98, 10, 0), V(98, 25, 0)), False)
sketch3.addGeometry(Part.LineSegment(V(98, 25, 0), V(95, 25, 0)), False)
sketch3.addGeometry(Part.LineSegment(V(95, 25, 0), V(95, 10, 0)), False)
sketch3.addGeometry(Part.LineSegment(V(95, 10, 0), V(98, 10, 0)), False)
sketch3.addGeometry(Part.LineSegment(V(98, 55, 0), V(98, 70, 0)), False)
sketch3.addGeometry(Part.LineSegment(V(98, 70, 0), V(95, 70, 0)), False)
sketch3.addGeometry(Part.LineSegment(V(95, 70, 0), V(95, 55, 0)), False)
sketch3.addGeometry(Part.LineSegment(V(95, 55, 0), V(98, 55, 0)), False)
sketch3.addGeometry(Part.LineSegment(V(98, -70, 0), V(98, -55, 0)), False)
sketch3.addGeometry(Part.LineSegment(V(98, -55, 0), V(95, -55, 0)), False)
sketch3.addGeometry(Part.LineSegment(V(95, -55, 0), V(95, -70, 0)), False)
sketch3.addGeometry(Part.LineSegment(V(95, -70, 0), V(98, -70, 0)), False)
sketch3.addConstraint(Sketcher.Constraint("Coincident", 0, 2, 1, 1))
sketch3.addConstraint(Sketcher.Constraint("Coincident", 1, 2, 2, 1))
sketch3.addConstraint(Sketcher.Constraint("Coincident", 2, 2, 3, 1))
sketch3.addConstraint(Sketcher.Constraint("Coincident", 3, 2, 0, 1))
sketch3.addConstraint(Sketcher.Constraint("Coincident", 4, 2, 5, 1))
sketch3.addConstraint(Sketcher.Constraint("Coincident", 5, 2, 6, 1))
sketch3.addConstraint(Sketcher.Constraint("Coincident", 6, 2, 7, 1))
sketch3.addConstraint(Sketcher.Constraint("Coincident", 7, 2, 4, 1))
sketch3.addConstraint(Sketcher.Constraint("Coincident", 8, 2, 9, 1))
sketch3.addConstraint(Sketcher.Constraint("Coincident", 9, 2, 10, 1))
sketch3.addConstraint(Sketcher.Constraint("Coincident", 10, 2, 11, 1))
sketch3.addConstraint(Sketcher.Constraint("Coincident", 11, 2, 8, 1))
sketch3.addConstraint(Sketcher.Constraint("Coincident", 12, 2, 13, 1))
sketch3.addConstraint(Sketcher.Constraint("Coincident", 13, 2, 14, 1))
sketch3.addConstraint(Sketcher.Constraint("Coincident", 14, 2, 15, 1))
sketch3.addConstraint(Sketcher.Constraint("Coincident", 15, 2, 12, 1))
sketch3.addConstraint(Sketcher.Constraint("Vertical", 0))
sketch3.addConstraint(Sketcher.Constraint("Horizontal", 1))
sketch3.addConstraint(Sketcher.Constraint("Vertical", 2))
sketch3.addConstraint(Sketcher.Constraint("Horizontal", 3))
sketch3.addConstraint(Sketcher.Constraint("Vertical", 4))
sketch3.addConstraint(Sketcher.Constraint("Horizontal", 5))
sketch3.addConstraint(Sketcher.Constraint("Vertical", 6))
sketch3.addConstraint(Sketcher.Constraint("Horizontal", 7))
sketch3.addConstraint(Sketcher.Constraint("Vertical", 8))
sketch3.addConstraint(Sketcher.Constraint("Horizontal", 9))
sketch3.addConstraint(Sketcher.Constraint("Vertical", 10))
sketch3.addConstraint(Sketcher.Constraint("Horizontal", 11))
sketch3.addConstraint(Sketcher.Constraint("Vertical", 12))
sketch3.addConstraint(Sketcher.Constraint("Horizontal", 13))
sketch3.addConstraint(Sketcher.Constraint("Vertical", 14))
sketch3.addConstraint(Sketcher.Constraint("Horizontal", 15))
sketch3.addConstraint(Sketcher.Constraint("Symmetric", 3, 2, 4, 2, -1))
sketch3.addConstraint(Sketcher.Constraint("Symmetric", 1, 2, 6, 2, -1))
sketch3.addConstraint(Sketcher.Constraint("Symmetric", 11, 2, 12, 2, -1))
sketch3.addConstraint(Sketcher.Constraint("Symmetric", 9, 2, 14, 2, -1))
sketch3.addConstraint(Sketcher.Constraint("Vertical", 7, 2, 8, 2))
sketch3.addConstraint(Sketcher.Constraint("Vertical", 6, 2, 9, 2))
sketch3.addConstraint(Sketcher.Constraint("Equal", 6, 8))
sketch3.addConstraint(Sketcher.Constraint("DistanceX", 1, 2, 1, 1, Q("3 mm")))
sketch3.addConstraint(Sketcher.Constraint("DistanceY", 0, 1, 0, 2, Q("15 mm")))
sketch3.addConstraint(Sketcher.Constraint("DistanceX", -1, 1, 0, 2, Q("98 mm")))
sketch3.addConstraint(Sketcher.Constraint("DistanceY", 0, 2, -1, 1, Q("10 mm")))
sketch3.addConstraint(Sketcher.Constraint("DistanceY", -1, 1, 8, 2, Q("70 mm")))
sketch3.setExpression("Constraints[39]", "Params.sketch3_width")
sketch3.setExpression("Constraints[40]", "Params.sketch3_height")
pocket2 = body.newObject("PartDesign::Pocket", "Pocket001")
pocket2.Profile = sketch3
pocket2.Type = "ThroughAll"
doc.recompute()

mirrored = body.newObject("PartDesign::Mirrored", "Mirrored")
mirrored.Originals = [pocket1]
mirrored.MirrorPlane = (doc.getObject("XZ_Plane"), [""])
body.Tip = mirrored

doc.recompute()
